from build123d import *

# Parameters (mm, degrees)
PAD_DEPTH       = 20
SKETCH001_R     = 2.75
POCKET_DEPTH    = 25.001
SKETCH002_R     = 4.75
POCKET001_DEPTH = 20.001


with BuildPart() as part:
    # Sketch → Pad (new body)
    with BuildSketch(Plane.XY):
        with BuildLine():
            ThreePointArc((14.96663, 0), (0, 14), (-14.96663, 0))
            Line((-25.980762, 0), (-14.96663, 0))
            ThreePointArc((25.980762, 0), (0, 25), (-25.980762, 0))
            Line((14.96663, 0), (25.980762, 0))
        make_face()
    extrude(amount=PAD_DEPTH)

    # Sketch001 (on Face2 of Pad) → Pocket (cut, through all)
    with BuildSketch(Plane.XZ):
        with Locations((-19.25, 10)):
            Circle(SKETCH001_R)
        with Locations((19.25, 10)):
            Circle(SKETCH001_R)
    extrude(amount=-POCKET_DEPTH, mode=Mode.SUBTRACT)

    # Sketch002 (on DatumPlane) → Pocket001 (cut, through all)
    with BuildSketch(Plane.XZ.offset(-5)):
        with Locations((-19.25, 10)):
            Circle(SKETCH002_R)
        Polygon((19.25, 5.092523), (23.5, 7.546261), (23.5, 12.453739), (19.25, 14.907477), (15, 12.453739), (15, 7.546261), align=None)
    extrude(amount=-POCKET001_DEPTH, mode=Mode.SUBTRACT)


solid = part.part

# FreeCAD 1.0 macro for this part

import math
import FreeCAD as App
import Part
import Sketcher
from FreeCAD import Vector
Q = App.Units.Quantity


def add_polygon(sketch, points):
    """Adds a closed chain of lines whose ends are joined by coincident constraints."""
    first, n = sketch.GeometryCount, len(points)
    for a, b in zip(points, points[1:] + points[:1]):
        sketch.addGeometry(Part.LineSegment(App.Vector(*a, 0), App.Vector(*b, 0)), False)
    for i in range(n):
        sketch.addConstraint(Sketcher.Constraint("Coincident", first + i, 2, first + (i + 1) % n, 1))

doc = App.newDocument("Part")
body = doc.addObject("PartDesign::Body", "Body")

# Sketch on XY plane
sketch1 = body.newObject("Sketcher::SketchObject", "Sketch")
sketch1.AttachmentSupport = (doc.getObject("XY_Plane"), [""])
sketch1.MapMode = "FlatFace"
sketch1.addGeometry([
    Part.ArcOfCircle(Part.Circle(Vector(0, -1, 0), Vector(0, 0, 1), 15), math.radians(4), math.radians(176)),
    Part.LineSegment(Vector(15, 0, 0), Vector(26, 0, 0)),
    Part.ArcOfCircle(Part.Circle(Vector(0, -1, 0), Vector(0, 0, 1), 26), math.radians(2), math.radians(178)),
    Part.LineSegment(Vector(-26, 0, 0), Vector(-15, 0, 0)),
], False)
sketch1.addConstraint([
    Sketcher.Constraint("Coincident", 0, 1, 1, 1),
    Sketcher.Constraint("Coincident", 1, 2, 2, 1),
    Sketcher.Constraint("Coincident", 2, 2, 3, 1),
    Sketcher.Constraint("Coincident", 3, 2, 0, 2),
    Sketcher.Constraint("Horizontal", 1),
    Sketcher.Constraint("Horizontal", 3),
    Sketcher.Constraint("Coincident", 2, 3, 0, 3),
    Sketcher.Constraint("Symmetric", 1, 2, 2, 2, -1, 1),
    Sketcher.Constraint("PointOnObject", 0, 3, -2),
    Sketcher.Constraint("Radius", 0, 15.0),
    Sketcher.Constraint("Radius", 2, 26.0),
    Sketcher.Constraint("DistanceY", 0, 3, -1, 1, 1.0),
])
pad1 = body.newObject("PartDesign::Pad", "Pad")
pad1.Profile = sketch1
pad1.Length = 20

# Sketch on XZ plane
sketch2 = body.newObject("Sketcher::SketchObject", "Sketch001")
sketch2.AttachmentSupport = (doc.getObject("XZ_Plane"), [""])
sketch2.MapMode = "FlatFace"
sketch2.addGeometry([
    Part.Circle(Vector(-19.2, 10, 0), Vector(0, 0, 1), 2.8),
    Part.Circle(Vector(19.2, 10, 0), Vector(0, 0, 1), 2.8),
], False)
sketch2.addConstraint([
    Sketcher.Constraint("Equal", 0, 1),
    Sketcher.Constraint("Symmetric", 0, 3, 1, 3, -2),
    Sketcher.Constraint("Diameter", 0, 5.5),
    Sketcher.Constraint("DistanceY", -1, 1, 0, 3, 10.0),
    Sketcher.Constraint("DistanceX", 0, 3, 1, 3, 38.5),
])
pocket1 = body.newObject("PartDesign::Pocket", "Pocket")
pocket1.Profile = sketch2
pocket1.Type = "ThroughAll"

# Sketch on XZ plane
sketch3 = body.newObject("Sketcher::SketchObject", "Sketch002")
sketch3.AttachmentSupport = (doc.getObject("XZ_Plane"), [""])
sketch3.MapMode = "FlatFace"
sketch3.AttachmentOffset = App.Placement(Vector(0, 0, -5), App.Rotation())
sketch3.addGeometry(Part.Circle(Vector(-19.2, 10, 0), Vector(0, 0, 1), 4.8), False)  # 0
add_polygon(sketch3, [(19.2, 5.1), (23.5, 7.5), (23.5, 12.5), (19.2, 14.9), (15, 12.5), (15, 7.5)])  # lines 1-6
sketch3.addConstraint([
    Sketcher.Constraint("Vertical", 2),
    Sketcher.Constraint("Vertical", 5),
    Sketcher.Constraint("Parallel", 1, 4),
    Sketcher.Constraint("Parallel", 3, 6),
    Sketcher.Constraint("Horizontal", 2, 2, 4, 2),
    Sketcher.Constraint("Horizontal", 1, 2, 5, 2),
    Sketcher.Constraint("Vertical", 3, 2, 6, 2),
    Sketcher.Constraint("Diameter", 0, 9.5),
    Sketcher.Constraint("Angle", 1, Q("29.999993 deg")),
    Sketcher.Constraint("DistanceY", -1, 1, 0, 3, 10.0),
    Sketcher.Constraint("DistanceX", -1, 1, 4, 2, 15.0),
    Sketcher.Constraint("DistanceX", -1, 1, 1, 2, 23.5),
    Sketcher.Constraint("DistanceX", 0, 3, 3, 2, 38.5),
    Sketcher.Constraint("DistanceY", 2, 1, 2, 2, 4.907478),
    Sketcher.Constraint("DistanceY", -1, 1, 1, 2, 7.546261),
])
pocket2 = body.newObject("PartDesign::Pocket", "Pocket001")
pocket2.Profile = sketch3
pocket2.Type = "ThroughAll"

doc.recompute()
